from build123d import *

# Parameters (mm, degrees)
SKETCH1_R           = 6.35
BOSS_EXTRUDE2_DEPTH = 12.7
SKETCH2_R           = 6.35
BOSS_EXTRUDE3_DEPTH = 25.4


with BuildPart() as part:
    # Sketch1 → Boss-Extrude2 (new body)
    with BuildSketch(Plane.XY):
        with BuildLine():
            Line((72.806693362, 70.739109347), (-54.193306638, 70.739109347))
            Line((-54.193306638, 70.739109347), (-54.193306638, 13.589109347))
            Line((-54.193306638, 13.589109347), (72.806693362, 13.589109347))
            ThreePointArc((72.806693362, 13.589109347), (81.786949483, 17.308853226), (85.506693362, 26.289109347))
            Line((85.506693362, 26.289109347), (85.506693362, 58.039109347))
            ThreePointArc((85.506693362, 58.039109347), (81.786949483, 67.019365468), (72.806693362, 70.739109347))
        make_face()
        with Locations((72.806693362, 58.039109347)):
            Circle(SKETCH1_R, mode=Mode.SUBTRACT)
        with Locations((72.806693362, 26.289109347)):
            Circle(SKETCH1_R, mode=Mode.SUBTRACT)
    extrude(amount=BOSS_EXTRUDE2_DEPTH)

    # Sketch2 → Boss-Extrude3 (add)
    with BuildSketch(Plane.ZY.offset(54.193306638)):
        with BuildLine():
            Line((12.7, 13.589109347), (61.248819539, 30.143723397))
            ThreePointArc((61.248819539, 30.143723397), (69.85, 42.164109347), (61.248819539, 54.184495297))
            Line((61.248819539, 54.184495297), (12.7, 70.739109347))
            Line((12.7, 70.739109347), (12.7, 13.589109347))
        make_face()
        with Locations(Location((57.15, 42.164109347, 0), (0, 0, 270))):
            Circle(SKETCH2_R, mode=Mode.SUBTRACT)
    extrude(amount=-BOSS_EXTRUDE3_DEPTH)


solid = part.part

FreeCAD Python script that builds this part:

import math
import FreeCAD as App
import Part
import Sketcher

V = App.Vector
Q = App.Units.Quantity

doc = App.newDocument("Part")
body = doc.addObject("PartDesign::Body", "Body")

sketch1 = body.newObject("Sketcher::SketchObject", "Sketch")
sketch1.AttachmentSupport = (doc.getObject("XY_Plane"), [""])
sketch1.MapMode = "FlatFace"
sketch1.addGeometry(Part.LineSegment(V(72.806693, 70.739109, 0), V(-54.193307, 70.739109, 0)), False)
sketch1.addGeometry(Part.LineSegment(V(-54.193307, 70.739109, 0), V(-54.193307, 13.589109, 0)), False)
sketch1.addGeometry(Part.LineSegment(V(-54.193307, 13.589109, 0), V(72.806693, 13.589109, 0)), False)
sketch1.addGeometry(Part.ArcOfCircle(Part.Circle(V(72.806693, 26.289109, 0), V(0, 0, 1), 12.7), math.radians(-90), math.radians(0)), False)
sketch1.addGeometry(Part.LineSegment(V(85.506693, 26.289109, 0), V(85.506693, 58.039109, 0)), False)
sketch1.addGeometry(Part.ArcOfCircle(Part.Circle(V(72.806693, 58.039109, 0), V(0, 0, 1), 12.7), math.radians(0), math.radians(90)), False)
sketch1.addGeometry(Part.Circle(V(72.806693, 26.289109, 0), V(0, 0, 1), 6.35), False)
sketch1.addGeometry(Part.Circle(V(72.806693, 58.039109, 0), V(0, 0, 1), 6.35), False)
sketch1.addConstraint(Sketcher.Constraint("Coincident", 0, 2, 1, 1))
sketch1.addConstraint(Sketcher.Constraint("Coincident", 1, 2, 2, 1))
sketch1.addConstraint(Sketcher.Constraint("Tangent", 2, 2, 3, 1))
sketch1.addConstraint(Sketcher.Constraint("Tangent", 3, 2, 4, 1))
sketch1.addConstraint(Sketcher.Constraint("Tangent", 4, 2, 5, 1))
sketch1.addConstraint(Sketcher.Constraint("Tangent", 5, 2, 0, 1))
sketch1.addConstraint(Sketcher.Constraint("Horizontal", 0))
sketch1.addConstraint(Sketcher.Constraint("Vertical", 1))
sketch1.addConstraint(Sketcher.Constraint("Horizontal", 2))
sketch1.addConstraint(Sketcher.Constraint("Vertical", 4))
sketch1.addConstraint(Sketcher.Constraint("Coincident", 6, 3, 3, 3))
sketch1.addConstraint(Sketcher.Constraint("Coincident", 7, 3, 5, 3))
sketch1.addConstraint(Sketcher.Constraint("Equal", 3, 5))
sketch1.addConstraint(Sketcher.Constraint("Equal", 6, 7))
sketch1.addConstraint(Sketcher.Constraint("Diameter", 6, Q("0.5 in")))
sketch1.addConstraint(Sketcher.Constraint("Radius", 3, Q("0.5 in")))
sketch1.addConstraint(Sketcher.Constraint("DistanceX", 0, 2, 0, 1, Q("5 in")))
sketch1.addConstraint(Sketcher.Constraint("DistanceY", 1, 2, 1, 1, Q("2.25 in")))
sketch1.addConstraint(Sketcher.Constraint("DistanceY", -1, 1, 3, 3, Q("26.289109 mm")))
sketch1.addConstraint(Sketcher.Constraint("DistanceX", -1, 1, 3, 3, Q("72.806693 mm")))
pad1 = body.newObject("PartDesign::Pad", "Pad")
pad1.Profile = sketch1
pad1.Length = Q("0.5 in")

sketch2 = body.newObject("Sketcher::SketchObject", "Sketch001")
sketch2.AttachmentSupport = (doc.getObject("YZ_Plane"), [""])
sketch2.MapMode = "FlatFace"
sketch2.AttachmentOffset = App.Placement(V(0, 0, -54.193307), App.Rotation())
sketch2.addGeometry(Part.LineSegment(V(13.589109, 12.7, 0), V(30.143723, 61.24882, 0)), False)
sketch2.addGeometry(Part.ArcOfCircle(Part.Circle(V(42.164109, 57.15, 0), V(0, 0, 1), 12.7), math.radians(18.828812), math.radians(161.171188)), False)
sketch2.addGeometry(Part.LineSegment(V(54.184495, 61.24882, 0), V(70.739109, 12.7, 0)), False)
sketch2.addGeometry(Part.LineSegment(V(70.739109, 12.7, 0), V(13.589109, 12.7, 0)), False)
sketch2.addGeometry(Part.Circle(V(42.164109, 57.15, 0), V(0, 0, 1), 6.35), False)
sketch2.addConstraint(Sketcher.Constraint("Tangent", 0, 2, 1, 2))
sketch2.addConstraint(Sketcher.Constraint("Tangent", 1, 1, 2, 1))
sketch2.addConstraint(Sketcher.Constraint("Coincident", 2, 2, 3, 1))
sketch2.addConstraint(Sketcher.Constraint("Coincident", 3, 2, 0, 1))
sketch2.addConstraint(Sketcher.Constraint("Horizontal", 3))
sketch2.addConstraint(Sketcher.Constraint("Coincident", 4, 3, 1, 3))
sketch2.addConstraint(Sketcher.Constraint("Horizontal", 0, 2, 1, 1))
sketch2.addConstraint(Sketcher.Constraint("Diameter", 4, Q("0.5 in")))
sketch2.addConstraint(Sketcher.Constraint("Radius", 1, Q("0.5 in")))
sketch2.addConstraint(Sketcher.Constraint("DistanceX", 3, 2, 3, 1, Q("2.25 in")))
sketch2.addConstraint(Sketcher.Constraint("DistanceY", -1, 1, 2, 2, Q("0.5 in")))
sketch2.addConstraint(Sketcher.Constraint("DistanceY", -1, 1, 1, 3, Q("2.25 in")))
sketch2.addConstraint(Sketcher.Constraint("DistanceX", -1, 1, 1, 3, Q("42.164109 mm")))
pad2 = body.newObject("PartDesign::Pad", "Pad001")
pad2.Profile = sketch2
pad2.Length = Q("1 in")

doc.recompute()
